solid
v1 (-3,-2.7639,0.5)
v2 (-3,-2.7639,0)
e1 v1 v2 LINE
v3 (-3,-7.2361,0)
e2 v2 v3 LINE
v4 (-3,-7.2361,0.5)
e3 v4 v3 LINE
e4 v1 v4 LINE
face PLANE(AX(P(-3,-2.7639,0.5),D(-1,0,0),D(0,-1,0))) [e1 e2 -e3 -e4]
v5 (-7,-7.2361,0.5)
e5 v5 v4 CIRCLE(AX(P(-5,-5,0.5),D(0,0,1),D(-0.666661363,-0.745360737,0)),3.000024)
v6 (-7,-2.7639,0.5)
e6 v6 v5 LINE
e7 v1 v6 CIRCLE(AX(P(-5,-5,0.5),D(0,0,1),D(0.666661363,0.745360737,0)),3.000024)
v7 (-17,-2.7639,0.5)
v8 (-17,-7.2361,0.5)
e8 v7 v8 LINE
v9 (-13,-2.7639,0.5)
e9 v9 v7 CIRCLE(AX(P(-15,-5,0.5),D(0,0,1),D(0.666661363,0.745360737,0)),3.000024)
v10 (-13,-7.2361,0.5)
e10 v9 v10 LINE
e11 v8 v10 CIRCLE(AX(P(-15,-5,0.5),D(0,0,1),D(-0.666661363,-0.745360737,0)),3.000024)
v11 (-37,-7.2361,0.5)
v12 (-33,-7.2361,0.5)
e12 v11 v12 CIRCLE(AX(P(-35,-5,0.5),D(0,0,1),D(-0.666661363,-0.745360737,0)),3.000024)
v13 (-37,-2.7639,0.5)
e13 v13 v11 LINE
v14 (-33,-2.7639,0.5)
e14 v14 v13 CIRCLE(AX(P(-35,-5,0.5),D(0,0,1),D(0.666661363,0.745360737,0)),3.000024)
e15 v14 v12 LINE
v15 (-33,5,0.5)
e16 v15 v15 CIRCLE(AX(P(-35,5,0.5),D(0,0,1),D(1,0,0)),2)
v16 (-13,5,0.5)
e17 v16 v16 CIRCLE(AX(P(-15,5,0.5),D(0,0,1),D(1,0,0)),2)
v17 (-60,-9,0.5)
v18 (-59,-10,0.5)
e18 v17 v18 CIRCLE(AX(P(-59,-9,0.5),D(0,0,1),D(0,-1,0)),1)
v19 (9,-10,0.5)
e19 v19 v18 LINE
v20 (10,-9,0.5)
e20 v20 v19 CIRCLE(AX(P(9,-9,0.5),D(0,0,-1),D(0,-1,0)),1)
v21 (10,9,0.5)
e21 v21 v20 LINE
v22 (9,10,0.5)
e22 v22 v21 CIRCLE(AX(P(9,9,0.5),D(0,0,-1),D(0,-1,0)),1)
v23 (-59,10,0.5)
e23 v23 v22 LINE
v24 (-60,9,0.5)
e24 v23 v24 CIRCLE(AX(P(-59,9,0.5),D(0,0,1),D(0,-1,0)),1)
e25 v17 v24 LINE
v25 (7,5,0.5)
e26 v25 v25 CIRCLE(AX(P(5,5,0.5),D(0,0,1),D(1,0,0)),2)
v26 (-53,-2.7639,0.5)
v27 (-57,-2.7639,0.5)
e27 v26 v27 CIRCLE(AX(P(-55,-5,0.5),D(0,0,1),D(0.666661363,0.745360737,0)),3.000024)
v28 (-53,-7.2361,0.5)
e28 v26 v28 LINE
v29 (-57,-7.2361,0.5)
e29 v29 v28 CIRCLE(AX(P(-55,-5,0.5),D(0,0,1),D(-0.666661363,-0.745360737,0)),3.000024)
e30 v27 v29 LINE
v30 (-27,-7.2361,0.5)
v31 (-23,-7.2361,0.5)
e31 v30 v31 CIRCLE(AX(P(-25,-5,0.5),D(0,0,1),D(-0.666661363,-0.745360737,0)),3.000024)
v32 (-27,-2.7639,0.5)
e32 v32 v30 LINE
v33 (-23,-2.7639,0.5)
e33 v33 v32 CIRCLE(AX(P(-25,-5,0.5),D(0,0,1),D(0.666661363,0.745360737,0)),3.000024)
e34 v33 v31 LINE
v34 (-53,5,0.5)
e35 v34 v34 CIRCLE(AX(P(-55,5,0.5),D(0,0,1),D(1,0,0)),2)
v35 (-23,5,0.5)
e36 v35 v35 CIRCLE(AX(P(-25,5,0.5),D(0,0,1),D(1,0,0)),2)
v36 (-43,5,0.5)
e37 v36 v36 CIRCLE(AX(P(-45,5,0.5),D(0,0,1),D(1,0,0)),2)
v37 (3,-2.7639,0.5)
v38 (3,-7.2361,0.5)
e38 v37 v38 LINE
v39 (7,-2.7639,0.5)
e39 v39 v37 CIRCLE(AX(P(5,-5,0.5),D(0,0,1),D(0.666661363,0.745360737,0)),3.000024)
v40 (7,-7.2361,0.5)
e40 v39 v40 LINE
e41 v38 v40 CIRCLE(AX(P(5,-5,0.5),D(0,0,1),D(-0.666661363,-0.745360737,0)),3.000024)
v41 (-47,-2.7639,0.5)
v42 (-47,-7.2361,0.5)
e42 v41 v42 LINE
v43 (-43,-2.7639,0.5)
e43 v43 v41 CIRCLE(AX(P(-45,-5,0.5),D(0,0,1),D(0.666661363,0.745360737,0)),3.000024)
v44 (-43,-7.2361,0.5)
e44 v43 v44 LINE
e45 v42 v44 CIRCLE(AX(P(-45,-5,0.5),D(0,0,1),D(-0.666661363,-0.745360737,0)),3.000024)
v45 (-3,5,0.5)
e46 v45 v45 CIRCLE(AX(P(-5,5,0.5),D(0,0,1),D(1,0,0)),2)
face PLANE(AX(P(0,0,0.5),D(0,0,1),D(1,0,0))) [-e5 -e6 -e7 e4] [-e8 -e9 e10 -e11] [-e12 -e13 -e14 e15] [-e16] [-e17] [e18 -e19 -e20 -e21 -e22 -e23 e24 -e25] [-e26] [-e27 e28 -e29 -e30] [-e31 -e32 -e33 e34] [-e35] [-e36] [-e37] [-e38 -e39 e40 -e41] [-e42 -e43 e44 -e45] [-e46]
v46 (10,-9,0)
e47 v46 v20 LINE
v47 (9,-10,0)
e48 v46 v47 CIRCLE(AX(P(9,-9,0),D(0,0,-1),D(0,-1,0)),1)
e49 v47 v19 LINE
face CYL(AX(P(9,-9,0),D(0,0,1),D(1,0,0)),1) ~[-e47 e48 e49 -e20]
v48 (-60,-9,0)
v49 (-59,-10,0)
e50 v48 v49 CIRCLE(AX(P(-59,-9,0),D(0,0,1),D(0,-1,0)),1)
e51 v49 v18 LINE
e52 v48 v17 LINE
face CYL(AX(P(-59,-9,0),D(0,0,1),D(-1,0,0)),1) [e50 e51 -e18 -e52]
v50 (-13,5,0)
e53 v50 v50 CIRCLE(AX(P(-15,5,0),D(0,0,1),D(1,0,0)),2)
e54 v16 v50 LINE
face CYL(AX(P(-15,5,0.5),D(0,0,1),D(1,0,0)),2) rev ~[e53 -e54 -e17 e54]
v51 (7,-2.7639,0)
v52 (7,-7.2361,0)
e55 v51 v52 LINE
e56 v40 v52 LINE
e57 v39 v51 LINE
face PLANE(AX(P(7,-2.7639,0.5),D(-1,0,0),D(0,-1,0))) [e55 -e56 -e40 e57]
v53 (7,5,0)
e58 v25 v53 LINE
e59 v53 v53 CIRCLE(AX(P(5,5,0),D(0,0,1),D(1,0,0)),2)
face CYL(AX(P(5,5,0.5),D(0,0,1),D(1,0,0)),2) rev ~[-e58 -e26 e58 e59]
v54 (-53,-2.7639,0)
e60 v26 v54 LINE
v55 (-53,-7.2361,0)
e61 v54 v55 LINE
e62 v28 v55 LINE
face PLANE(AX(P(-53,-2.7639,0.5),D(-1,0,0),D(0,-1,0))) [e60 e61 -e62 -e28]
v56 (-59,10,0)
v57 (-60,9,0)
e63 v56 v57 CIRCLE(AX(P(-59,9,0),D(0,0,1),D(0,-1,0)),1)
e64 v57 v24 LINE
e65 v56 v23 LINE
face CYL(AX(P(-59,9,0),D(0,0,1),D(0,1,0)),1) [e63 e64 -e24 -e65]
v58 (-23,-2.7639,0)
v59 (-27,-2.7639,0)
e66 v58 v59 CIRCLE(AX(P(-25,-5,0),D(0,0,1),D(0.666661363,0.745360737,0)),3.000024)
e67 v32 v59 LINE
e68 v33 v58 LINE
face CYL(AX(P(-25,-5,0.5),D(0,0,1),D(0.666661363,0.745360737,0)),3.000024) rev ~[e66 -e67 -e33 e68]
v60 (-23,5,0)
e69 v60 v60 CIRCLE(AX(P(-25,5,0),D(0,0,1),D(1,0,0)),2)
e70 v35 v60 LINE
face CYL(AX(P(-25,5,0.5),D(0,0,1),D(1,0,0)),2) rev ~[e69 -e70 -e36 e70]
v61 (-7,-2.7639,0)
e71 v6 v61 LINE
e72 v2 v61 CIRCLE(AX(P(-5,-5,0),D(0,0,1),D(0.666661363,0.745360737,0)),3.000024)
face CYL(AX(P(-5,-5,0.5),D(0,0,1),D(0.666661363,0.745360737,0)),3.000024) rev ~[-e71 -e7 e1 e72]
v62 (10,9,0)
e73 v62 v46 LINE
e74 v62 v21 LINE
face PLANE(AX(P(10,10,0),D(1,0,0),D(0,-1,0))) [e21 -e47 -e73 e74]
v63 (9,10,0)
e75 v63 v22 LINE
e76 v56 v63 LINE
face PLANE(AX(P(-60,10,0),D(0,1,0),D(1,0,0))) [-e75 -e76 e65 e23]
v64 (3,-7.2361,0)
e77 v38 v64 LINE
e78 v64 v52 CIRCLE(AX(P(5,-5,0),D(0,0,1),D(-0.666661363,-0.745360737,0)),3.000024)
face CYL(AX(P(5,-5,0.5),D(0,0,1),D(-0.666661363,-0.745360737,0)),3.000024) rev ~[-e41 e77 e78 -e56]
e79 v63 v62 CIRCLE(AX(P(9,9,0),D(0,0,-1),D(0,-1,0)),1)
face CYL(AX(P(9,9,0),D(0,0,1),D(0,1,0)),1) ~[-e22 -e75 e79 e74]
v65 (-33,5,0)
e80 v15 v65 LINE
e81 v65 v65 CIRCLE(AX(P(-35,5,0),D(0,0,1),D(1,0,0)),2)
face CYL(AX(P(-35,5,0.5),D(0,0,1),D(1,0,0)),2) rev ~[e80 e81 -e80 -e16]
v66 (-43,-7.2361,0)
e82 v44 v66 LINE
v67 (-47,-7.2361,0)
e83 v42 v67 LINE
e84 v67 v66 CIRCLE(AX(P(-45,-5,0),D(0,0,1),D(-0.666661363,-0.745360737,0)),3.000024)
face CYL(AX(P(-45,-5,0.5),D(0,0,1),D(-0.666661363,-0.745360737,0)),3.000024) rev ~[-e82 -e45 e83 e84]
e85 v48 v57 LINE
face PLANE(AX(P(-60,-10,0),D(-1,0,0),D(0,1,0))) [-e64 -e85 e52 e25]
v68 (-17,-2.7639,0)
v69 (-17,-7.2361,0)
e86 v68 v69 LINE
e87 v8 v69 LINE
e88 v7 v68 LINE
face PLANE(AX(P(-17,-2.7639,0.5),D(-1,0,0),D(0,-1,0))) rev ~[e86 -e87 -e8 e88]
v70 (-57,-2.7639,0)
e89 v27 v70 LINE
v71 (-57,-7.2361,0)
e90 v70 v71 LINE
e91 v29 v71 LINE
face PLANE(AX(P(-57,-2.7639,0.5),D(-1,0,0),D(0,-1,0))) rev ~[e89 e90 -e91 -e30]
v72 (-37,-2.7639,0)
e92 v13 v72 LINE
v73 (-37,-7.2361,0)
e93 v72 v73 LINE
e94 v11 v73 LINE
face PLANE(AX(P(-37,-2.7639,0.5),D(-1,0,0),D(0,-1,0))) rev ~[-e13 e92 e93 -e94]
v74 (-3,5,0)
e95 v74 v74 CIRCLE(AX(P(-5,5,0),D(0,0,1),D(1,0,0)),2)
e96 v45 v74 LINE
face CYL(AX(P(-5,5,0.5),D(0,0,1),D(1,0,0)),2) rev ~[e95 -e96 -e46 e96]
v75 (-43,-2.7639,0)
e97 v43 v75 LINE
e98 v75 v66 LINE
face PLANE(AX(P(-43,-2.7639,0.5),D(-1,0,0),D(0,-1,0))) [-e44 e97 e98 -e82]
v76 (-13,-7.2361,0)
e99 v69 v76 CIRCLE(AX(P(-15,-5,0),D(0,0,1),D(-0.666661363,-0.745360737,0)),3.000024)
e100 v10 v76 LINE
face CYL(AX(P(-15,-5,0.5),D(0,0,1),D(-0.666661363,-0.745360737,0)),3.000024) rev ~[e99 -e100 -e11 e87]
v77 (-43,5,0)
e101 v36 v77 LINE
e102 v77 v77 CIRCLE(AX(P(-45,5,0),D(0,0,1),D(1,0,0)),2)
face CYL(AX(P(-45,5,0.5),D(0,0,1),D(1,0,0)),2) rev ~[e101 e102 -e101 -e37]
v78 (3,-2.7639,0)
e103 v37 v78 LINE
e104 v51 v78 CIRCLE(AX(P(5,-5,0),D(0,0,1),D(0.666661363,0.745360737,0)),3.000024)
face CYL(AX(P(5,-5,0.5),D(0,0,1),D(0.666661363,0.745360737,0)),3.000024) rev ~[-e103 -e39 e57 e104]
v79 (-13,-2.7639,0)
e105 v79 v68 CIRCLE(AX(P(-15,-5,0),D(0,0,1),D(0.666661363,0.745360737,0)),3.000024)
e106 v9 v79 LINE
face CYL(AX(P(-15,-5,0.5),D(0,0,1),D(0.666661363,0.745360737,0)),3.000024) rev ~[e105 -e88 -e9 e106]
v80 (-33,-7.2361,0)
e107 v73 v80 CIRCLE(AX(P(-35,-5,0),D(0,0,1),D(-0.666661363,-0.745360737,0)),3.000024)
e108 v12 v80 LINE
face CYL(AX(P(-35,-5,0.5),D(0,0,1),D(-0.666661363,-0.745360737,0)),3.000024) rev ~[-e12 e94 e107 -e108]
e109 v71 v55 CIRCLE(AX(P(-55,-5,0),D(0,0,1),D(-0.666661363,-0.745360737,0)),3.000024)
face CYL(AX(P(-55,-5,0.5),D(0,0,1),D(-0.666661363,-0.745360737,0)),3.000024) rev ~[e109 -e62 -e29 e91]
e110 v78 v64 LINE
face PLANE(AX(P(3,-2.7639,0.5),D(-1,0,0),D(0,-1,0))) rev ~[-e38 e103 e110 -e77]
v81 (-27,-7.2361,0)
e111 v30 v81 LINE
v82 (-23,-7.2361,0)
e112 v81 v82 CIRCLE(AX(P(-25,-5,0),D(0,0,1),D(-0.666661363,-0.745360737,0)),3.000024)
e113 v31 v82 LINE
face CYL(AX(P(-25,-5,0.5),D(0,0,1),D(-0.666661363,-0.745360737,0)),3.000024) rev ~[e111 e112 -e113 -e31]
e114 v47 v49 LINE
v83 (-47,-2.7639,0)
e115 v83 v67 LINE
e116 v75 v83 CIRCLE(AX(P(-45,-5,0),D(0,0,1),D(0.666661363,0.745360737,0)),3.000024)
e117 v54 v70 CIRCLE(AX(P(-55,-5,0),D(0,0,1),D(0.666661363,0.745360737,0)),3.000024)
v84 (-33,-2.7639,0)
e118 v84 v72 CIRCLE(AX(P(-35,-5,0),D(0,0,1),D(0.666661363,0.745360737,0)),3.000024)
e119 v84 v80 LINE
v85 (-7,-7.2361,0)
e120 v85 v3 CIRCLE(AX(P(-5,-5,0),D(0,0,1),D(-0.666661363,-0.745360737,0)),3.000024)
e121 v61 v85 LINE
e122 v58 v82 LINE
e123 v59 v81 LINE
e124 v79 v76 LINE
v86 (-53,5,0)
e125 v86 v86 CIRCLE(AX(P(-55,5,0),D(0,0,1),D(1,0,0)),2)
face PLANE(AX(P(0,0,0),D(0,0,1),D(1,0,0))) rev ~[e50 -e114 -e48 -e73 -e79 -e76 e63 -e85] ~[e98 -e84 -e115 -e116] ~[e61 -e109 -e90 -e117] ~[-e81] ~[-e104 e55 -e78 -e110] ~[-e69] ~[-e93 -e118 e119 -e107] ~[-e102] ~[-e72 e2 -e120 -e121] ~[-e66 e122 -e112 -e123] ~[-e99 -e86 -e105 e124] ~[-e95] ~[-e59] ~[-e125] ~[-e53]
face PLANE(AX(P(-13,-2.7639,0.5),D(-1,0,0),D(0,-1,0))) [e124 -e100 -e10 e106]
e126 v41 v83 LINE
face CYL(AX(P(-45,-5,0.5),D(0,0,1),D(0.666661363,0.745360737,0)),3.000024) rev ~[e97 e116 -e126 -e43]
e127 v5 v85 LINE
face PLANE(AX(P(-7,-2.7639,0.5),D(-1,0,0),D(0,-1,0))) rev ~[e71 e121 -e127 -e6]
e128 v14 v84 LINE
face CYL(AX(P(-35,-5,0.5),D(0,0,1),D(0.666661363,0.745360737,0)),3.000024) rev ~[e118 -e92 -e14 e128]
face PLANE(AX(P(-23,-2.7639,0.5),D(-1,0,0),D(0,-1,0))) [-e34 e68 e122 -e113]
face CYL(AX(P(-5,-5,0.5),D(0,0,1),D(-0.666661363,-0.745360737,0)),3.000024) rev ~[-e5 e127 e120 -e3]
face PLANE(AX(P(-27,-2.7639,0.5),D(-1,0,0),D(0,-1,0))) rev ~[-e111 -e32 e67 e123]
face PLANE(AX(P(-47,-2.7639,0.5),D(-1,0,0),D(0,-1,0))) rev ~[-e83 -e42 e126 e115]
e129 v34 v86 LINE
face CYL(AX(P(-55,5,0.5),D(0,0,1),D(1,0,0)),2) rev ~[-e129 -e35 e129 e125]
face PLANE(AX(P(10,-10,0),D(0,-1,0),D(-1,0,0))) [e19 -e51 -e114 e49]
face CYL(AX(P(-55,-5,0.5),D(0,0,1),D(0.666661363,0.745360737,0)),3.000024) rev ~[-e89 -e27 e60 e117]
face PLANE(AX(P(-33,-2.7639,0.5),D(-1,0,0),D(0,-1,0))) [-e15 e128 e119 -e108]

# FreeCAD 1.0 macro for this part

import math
import FreeCAD as App
import Part
import Sketcher
Q = App.Units.Quantity


def edges_at(feature, points):
    """Names of the edges that pass closest to the given points."""
    edges = feature.Shape.Edges
    near = lambda p: min(range(len(edges)), key=lambda i: edges[i].distToShape(Part.Vertex(*p))[0])
    return sorted({f"Edge{near(p) + 1}" for p in points})


def add_polygon(sketch, points):
    """Adds a closed chain of lines whose ends are joined by coincident constraints."""
    first, n = sketch.GeometryCount, len(points)
    for a, b in zip(points, points[1:] + points[:1]):
        sketch.addGeometry(Part.LineSegment(App.Vector(*a, 0), App.Vector(*b, 0)), False)
    for i in range(n):
        sketch.addConstraint(Sketcher.Constraint("Coincident", first + i, 2, first + (i + 1) % n, 1))

doc = App.newDocument("Part")
body = doc.addObject("PartDesign::Body", "Body")

# Sketch on XY plane
sketch1 = body.newObject("Sketcher::SketchObject", "Sketch")
sketch1.AttachmentSupport = (doc.getObject("XY_Plane"), [""])
sketch1.MapMode = "FlatFace"
add_polygon(sketch1, [(10, 10), (-60, 10), (-60, -10), (10, -10)])  # lines 0-3
sketch1.addConstraint([
    Sketcher.Constraint("Horizontal", 0),
    Sketcher.Constraint("Vertical", 1),
    Sketcher.Constraint("Horizontal", 2),
    Sketcher.Constraint("Vertical", 3),
    Sketcher.Constraint("DistanceX", 0, 2, 0, 1, Q("70 mm")),
    Sketcher.Constraint("DistanceY", 1, 2, 1, 1, Q("20 mm")),
    Sketcher.Constraint("DistanceY", -1, 1, 0, 2, Q("10 mm")),
    Sketcher.Constraint("DistanceX", -1, 1, 2, 2, Q("10 mm")),
])
pad1 = body.newObject("PartDesign::Pad", "Pad")
pad1.Profile = sketch1
pad1.Length = 0.5

# Sketch on XY plane
sketch2 = body.newObject("Sketcher::SketchObject", "Sketch001")
sketch2.AttachmentSupport = (doc.getObject("XY_Plane"), [""])
sketch2.MapMode = "FlatFace"
sketch2.AttachmentOffset = App.Placement(App.Vector(0, 0, 0.5), App.Rotation())
sketch2.addGeometry(Part.Circle(App.Vector(-55, 5, 0), App.Vector(0, 0, 1), 2), False)
sketch2.addConstraint([
    Sketcher.Constraint("Diameter", 0, Q("4 mm")),
    Sketcher.Constraint("DistanceY", -1, 1, 0, 3, Q("5 mm")),
    Sketcher.Constraint("DistanceX", 0, 3, -1, 1, Q("55 mm")),
])
pocket1 = body.newObject("PartDesign::Pocket", "Pocket")
pocket1.Profile = sketch2
pocket1.Length = 0.5
doc.recompute()

linearpattern = body.newObject("PartDesign::LinearPattern", "LinearPattern")
linearpattern.Originals = [pocket1]
linearpattern.Direction = (doc.getObject("X_Axis"), [""])
linearpattern.Mode = "offset"
linearpattern.Offset = 10
linearpattern.Occurrences = 7
body.Tip = linearpattern
doc.recompute()

fillet = body.newObject("PartDesign::Fillet", "Fillet")
fillet.Base = (linearpattern, edges_at(linearpattern, [(10, 10, 0.25)]))
fillet.Radius = 1
doc.recompute()

fillet2 = body.newObject("PartDesign::Fillet", "Fillet001")
fillet2.Base = (fillet, edges_at(fillet, [(-60, 10, 0.25), (-60, -10, 0.25)]))
fillet2.Radius = 1
doc.recompute()

fillet3 = body.newObject("PartDesign::Fillet", "Fillet002")
fillet3.Base = (fillet2, edges_at(fillet2, [(10, -10, 0.25)]))
fillet3.Radius = 1

# Sketch on XY plane
sketch3 = body.newObject("Sketcher::SketchObject", "Sketch002")
sketch3.AttachmentSupport = (doc.getObject("XY_Plane"), [""])
sketch3.MapMode = "FlatFace"
sketch3.AttachmentOffset = App.Placement(App.Vector(0, 0, 0.5), App.Rotation())
sketch3.addGeometry([
    Part.LineSegment(App.Vector(7, -7.2, 0), App.Vector(7, -2.8, 0)),
    Part.ArcOfCircle(Part.Circle(App.Vector(5, -5, 0), App.Vector(0, 0, 1), 3), math.radians(48), math.radians(132)),
    Part.LineSegment(App.Vector(3, -2.8, 0), App.Vector(3, -7.2, 0)),
    Part.ArcOfCircle(Part.Circle(App.Vector(5, -5, 0), App.Vector(0, 0, 1), 3), math.radians(-132), math.radians(-48)),
], False)
sketch3.addConstraint([
    Sketcher.Constraint("Coincident", 0, 2, 1, 1),
    Sketcher.Constraint("Coincident", 1, 2, 2, 1),
    Sketcher.Constraint("Coincident", 2, 2, 3, 1),
    Sketcher.Constraint("Coincident", 3, 2, 0, 1),
    Sketcher.Constraint("Vertical", 0),
    Sketcher.Constraint("Vertical", 2),
    Sketcher.Constraint("Coincident", 3, 3, 1, 3),
    Sketcher.Constraint("Equal", 1, 3),
    Sketcher.Constraint("Horizontal", 0, 2, 1, 2),
    Sketcher.Constraint("Radius", 1, Q("3 mm")),
    Sketcher.Constraint("DistanceX", -1, 1, 1, 3, Q("5 mm")),
    Sketcher.Constraint("DistanceY", 1, 3, -1, 1, Q("5 mm")),
    Sketcher.Constraint("DistanceX", -1, 1, 1, 2, Q("3 mm")),
])
pocket2 = body.newObject("PartDesign::Pocket", "Pocket001")
pocket2.Profile = sketch3
pocket2.Length = 10
doc.recompute()

linearpattern2 = body.newObject("PartDesign::LinearPattern", "LinearPattern001")
linearpattern2.Originals = [pocket2]
linearpattern2.Direction = (doc.getObject("X_Axis"), [""])
linearpattern2.Mode = "offset"
linearpattern2.Offset = 10
linearpattern2.Occurrences = 7
linearpattern2.Reversed = True
body.Tip = linearpattern2

doc.recompute()
